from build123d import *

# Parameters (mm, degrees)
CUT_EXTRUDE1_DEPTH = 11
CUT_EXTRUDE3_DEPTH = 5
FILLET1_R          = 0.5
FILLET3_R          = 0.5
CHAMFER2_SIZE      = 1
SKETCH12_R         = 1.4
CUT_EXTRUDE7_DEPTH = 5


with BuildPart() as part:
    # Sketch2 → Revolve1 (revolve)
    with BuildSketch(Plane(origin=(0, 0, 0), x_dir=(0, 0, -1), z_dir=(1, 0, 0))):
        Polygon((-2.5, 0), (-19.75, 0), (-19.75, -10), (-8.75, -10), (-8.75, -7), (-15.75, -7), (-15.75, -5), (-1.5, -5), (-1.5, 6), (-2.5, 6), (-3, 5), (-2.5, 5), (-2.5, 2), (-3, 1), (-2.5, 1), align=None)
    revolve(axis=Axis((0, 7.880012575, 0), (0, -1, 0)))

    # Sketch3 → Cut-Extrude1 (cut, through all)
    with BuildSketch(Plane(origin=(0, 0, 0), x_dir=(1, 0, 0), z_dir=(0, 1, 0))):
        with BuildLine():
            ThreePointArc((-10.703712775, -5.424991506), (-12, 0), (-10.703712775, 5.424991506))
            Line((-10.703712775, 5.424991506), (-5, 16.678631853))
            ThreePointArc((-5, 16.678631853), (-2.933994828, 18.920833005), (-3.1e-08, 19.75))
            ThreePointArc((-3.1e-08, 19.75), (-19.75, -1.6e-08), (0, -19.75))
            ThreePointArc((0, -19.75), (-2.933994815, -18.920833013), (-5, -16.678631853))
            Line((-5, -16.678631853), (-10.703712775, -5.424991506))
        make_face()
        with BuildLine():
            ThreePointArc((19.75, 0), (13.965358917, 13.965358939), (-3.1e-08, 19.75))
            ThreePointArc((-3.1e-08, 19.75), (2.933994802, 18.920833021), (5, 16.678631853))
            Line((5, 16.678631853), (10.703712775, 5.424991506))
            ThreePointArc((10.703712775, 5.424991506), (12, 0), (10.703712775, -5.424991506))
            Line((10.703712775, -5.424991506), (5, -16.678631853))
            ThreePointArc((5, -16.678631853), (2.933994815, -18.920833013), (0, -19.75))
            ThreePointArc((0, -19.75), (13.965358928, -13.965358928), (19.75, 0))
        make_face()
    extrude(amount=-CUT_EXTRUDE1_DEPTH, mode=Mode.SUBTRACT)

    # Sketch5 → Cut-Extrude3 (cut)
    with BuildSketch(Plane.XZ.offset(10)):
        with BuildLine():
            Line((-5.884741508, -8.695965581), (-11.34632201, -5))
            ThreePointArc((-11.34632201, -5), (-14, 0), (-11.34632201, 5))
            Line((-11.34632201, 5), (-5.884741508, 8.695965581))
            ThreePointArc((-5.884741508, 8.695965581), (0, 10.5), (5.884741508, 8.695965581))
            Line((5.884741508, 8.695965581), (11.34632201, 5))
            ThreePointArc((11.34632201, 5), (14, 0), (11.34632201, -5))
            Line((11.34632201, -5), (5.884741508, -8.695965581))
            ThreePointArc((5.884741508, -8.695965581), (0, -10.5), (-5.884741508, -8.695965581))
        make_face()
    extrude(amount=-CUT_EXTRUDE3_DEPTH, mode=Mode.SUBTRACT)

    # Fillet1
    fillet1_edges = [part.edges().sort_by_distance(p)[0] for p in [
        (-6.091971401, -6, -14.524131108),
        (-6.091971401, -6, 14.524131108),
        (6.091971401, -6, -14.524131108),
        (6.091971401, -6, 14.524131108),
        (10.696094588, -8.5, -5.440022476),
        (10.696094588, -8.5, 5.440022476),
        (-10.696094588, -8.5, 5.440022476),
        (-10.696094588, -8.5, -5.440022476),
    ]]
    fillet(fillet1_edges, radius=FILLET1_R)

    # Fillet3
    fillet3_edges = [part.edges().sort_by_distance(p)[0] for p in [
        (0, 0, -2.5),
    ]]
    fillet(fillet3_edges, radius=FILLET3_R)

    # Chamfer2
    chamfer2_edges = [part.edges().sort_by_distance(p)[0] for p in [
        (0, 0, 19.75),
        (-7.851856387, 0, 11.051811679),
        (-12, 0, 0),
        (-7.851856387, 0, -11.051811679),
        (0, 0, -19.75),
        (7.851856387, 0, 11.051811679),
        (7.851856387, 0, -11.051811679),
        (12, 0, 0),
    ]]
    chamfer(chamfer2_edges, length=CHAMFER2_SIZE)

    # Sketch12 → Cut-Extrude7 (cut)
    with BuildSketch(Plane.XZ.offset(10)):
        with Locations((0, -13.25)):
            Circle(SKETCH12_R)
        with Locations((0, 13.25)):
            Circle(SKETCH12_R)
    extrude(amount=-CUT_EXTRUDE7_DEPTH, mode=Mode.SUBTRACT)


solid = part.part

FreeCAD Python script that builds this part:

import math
import FreeCAD as App
import Part
import Sketcher

V = App.Vector
Q = App.Units.Quantity


def edges_at(feature, points):
    """Names of the edges that pass closest to the given points."""
    edges = feature.Shape.Edges
    near = lambda p: min(range(len(edges)), key=lambda i: edges[i].distToShape(Part.Vertex(*p))[0])
    return sorted({f"Edge{near(p) + 1}" for p in points})

doc = App.newDocument("Part")
body = doc.addObject("PartDesign::Body", "Body")

# Sketch on YZ plane
sketch1 = body.newObject("Sketcher::SketchObject", "Sketch")
sketch1.AttachmentSupport = (doc.getObject("YZ_Plane"), [""])
sketch1.MapMode = "FlatFace"
sketch1.addGeometry(Part.LineSegment(V(0, 2.5, 0), V(0, 19.75, 0)), False)
sketch1.addGeometry(Part.LineSegment(V(0, 19.75, 0), V(-10, 19.75, 0)), False)
sketch1.addGeometry(Part.LineSegment(V(-10, 19.75, 0), V(-10, 8.75, 0)), False)
sketch1.addGeometry(Part.LineSegment(V(-10, 8.75, 0), V(-7, 8.75, 0)), False)
sketch1.addGeometry(Part.LineSegment(V(-7, 8.75, 0), V(-7, 15.75, 0)), False)
sketch1.addGeometry(Part.LineSegment(V(-7, 15.75, 0), V(-5, 15.75, 0)), False)
sketch1.addGeometry(Part.LineSegment(V(-5, 15.75, 0), V(-5, 1.5, 0)), False)
sketch1.addGeometry(Part.LineSegment(V(-5, 1.5, 0), V(6, 1.5, 0)), False)
sketch1.addGeometry(Part.LineSegment(V(6, 1.5, 0), V(6, 2.5, 0)), False)
sketch1.addGeometry(Part.LineSegment(V(6, 2.5, 0), V(5, 3, 0)), False)
sketch1.addGeometry(Part.LineSegment(V(5, 3, 0), V(5, 2.5, 0)), False)
sketch1.addGeometry(Part.LineSegment(V(5, 2.5, 0), V(2, 2.5, 0)), False)
sketch1.addGeometry(Part.LineSegment(V(2, 2.5, 0), V(1, 3, 0)), False)
sketch1.addGeometry(Part.LineSegment(V(1, 3, 0), V(1, 2.5, 0)), False)
sketch1.addGeometry(Part.LineSegment(V(1, 2.5, 0), V(0, 2.5, 0)), False)
sketch1.addConstraint(Sketcher.Constraint("Coincident", 0, 2, 1, 1))
sketch1.addConstraint(Sketcher.Constraint("Coincident", 1, 2, 2, 1))
sketch1.addConstraint(Sketcher.Constraint("Coincident", 2, 2, 3, 1))
sketch1.addConstraint(Sketcher.Constraint("Coincident", 3, 2, 4, 1))
sketch1.addConstraint(Sketcher.Constraint("Coincident", 4, 2, 5, 1))
sketch1.addConstraint(Sketcher.Constraint("Coincident", 5, 2, 6, 1))
sketch1.addConstraint(Sketcher.Constraint("Coincident", 6, 2, 7, 1))
sketch1.addConstraint(Sketcher.Constraint("Coincident", 7, 2, 8, 1))
sketch1.addConstraint(Sketcher.Constraint("Coincident", 8, 2, 9, 1))
sketch1.addConstraint(Sketcher.Constraint("Coincident", 9, 2, 10, 1))
sketch1.addConstraint(Sketcher.Constraint("Coincident", 10, 2, 11, 1))
sketch1.addConstraint(Sketcher.Constraint("Coincident", 11, 2, 12, 1))
sketch1.addConstraint(Sketcher.Constraint("Coincident", 12, 2, 13, 1))
sketch1.addConstraint(Sketcher.Constraint("Coincident", 13, 2, 14, 1))
sketch1.addConstraint(Sketcher.Constraint("Coincident", 14, 2, 0, 1))
sketch1.addConstraint(Sketcher.Constraint("Vertical", 0))
sketch1.addConstraint(Sketcher.Constraint("Horizontal", 1))
sketch1.addConstraint(Sketcher.Constraint("Vertical", 2))
sketch1.addConstraint(Sketcher.Constraint("Horizontal", 3))
sketch1.addConstraint(Sketcher.Constraint("Vertical", 4))
sketch1.addConstraint(Sketcher.Constraint("Horizontal", 5))
sketch1.addConstraint(Sketcher.Constraint("Vertical", 6))
sketch1.addConstraint(Sketcher.Constraint("Horizontal", 7))
sketch1.addConstraint(Sketcher.Constraint("Vertical", 8))
sketch1.addConstraint(Sketcher.Constraint("Vertical", 10))
sketch1.addConstraint(Sketcher.Constraint("Horizontal", 11))
sketch1.addConstraint(Sketcher.Constraint("Vertical", 13))
sketch1.addConstraint(Sketcher.Constraint("Horizontal", 14))
sketch1.addConstraint(Sketcher.Constraint("PointOnObject", 0, 2, -2))
sketch1.addConstraint(Sketcher.Constraint("Parallel", 9, 12))
sketch1.addConstraint(Sketcher.Constraint("Horizontal", 8, 2, 10, 2))
sketch1.addConstraint(Sketcher.Constraint("Horizontal", 9, 2, 12, 2))
sketch1.addConstraint(Sketcher.Constraint("Horizontal", 11, 2, 13, 2))
sketch1.addConstraint(Sketcher.Constraint("Equal", 3, 11))
sketch1.addConstraint(Sketcher.Constraint("Equal", 7, 2))
sketch1.addConstraint(Sketcher.Constraint("Equal", 14, 8))
sketch1.addConstraint(Sketcher.Constraint("DistanceX", 1, 2, 1, 1, Q("10 mm")))
sketch1.addConstraint(Sketcher.Constraint("DistanceX", 3, 1, 3, 2, Q("3 mm")))
sketch1.addConstraint(Sketcher.Constraint("DistanceX", 5, 1, 5, 2, Q("2 mm")))
sketch1.addConstraint(Sketcher.Constraint("DistanceX", 7, 1, 7, 2, Q("11 mm")))
sketch1.addConstraint(Sketcher.Constraint("DistanceX", 14, 2, 14, 1, Q("1 mm")))
sketch1.addConstraint(Sketcher.Constraint("DistanceY", 4, 1, 4, 2, Q("7 mm")))
sketch1.addConstraint(Sketcher.Constraint("DistanceY", 10, 2, 10, 1, Q("0.5 mm")))
sketch1.addConstraint(Sketcher.Constraint("DistanceY", -1, 1, 9, 2, Q("3 mm")))
sketch1.addConstraint(Sketcher.Constraint("DistanceY", 0, 1, 0, 2, Q("17.25 mm")))
revolution = body.newObject("PartDesign::Revolution", "Revolution")
revolution.Profile = sketch1
revolution.ReferenceAxis = (sketch1, ["H_Axis"])
revolution.Angle = 360

# Sketch on XZ plane
sketch2 = body.newObject("Sketcher::SketchObject", "Sketch001")
sketch2.AttachmentSupport = (doc.getObject("XZ_Plane"), [""])
sketch2.MapMode = "FlatFace"
sketch2.addGeometry(Part.ArcOfCircle(Part.Circle(V(0, 0, 0), V(0, 0, 1), 12), math.radians(153.122618), math.radians(206.877382)), False)
sketch2.addGeometry(Part.LineSegment(V(-10.703713, -5.424992, 0), V(-5, -16.678632, 0)), False)
sketch2.addGeometry(Part.ArcOfCircle(Part.Circle(V(0, -14.144468, 0), V(0, 0, 1), 5.605532), math.radians(-153.122618), math.radians(-90)), False)
sketch2.addGeometry(Part.ArcOfCircle(Part.Circle(V(0, 0, 0), V(0, 0, 1), 19.75), math.radians(90), math.radians(270)), False)
sketch2.addGeometry(Part.ArcOfCircle(Part.Circle(V(0, 14.144468, 0), V(0, 0, 1), 5.605532), math.radians(90), math.radians(153.122618)), False)
sketch2.addGeometry(Part.LineSegment(V(-5, 16.678632, 0), V(-10.703713, 5.424992, 0)), False)
sketch2.addGeometry(Part.ArcOfCircle(Part.Circle(V(0, 0, 0), V(0, 0, 1), 19.75), math.radians(-90), math.radians(0)), False)
sketch2.addGeometry(Part.ArcOfCircle(Part.Circle(V(0, -14.144468, 0), V(0, 0, 1), 5.605532), math.radians(-90), math.radians(-26.877382)), False)
sketch2.addGeometry(Part.LineSegment(V(5, -16.678632, 0), V(10.703713, -5.424992, 0)), False)
sketch2.addGeometry(Part.ArcOfCircle(Part.Circle(V(0, 0, 0), V(0, 0, 1), 12), math.radians(-26.877382), math.radians(26.877382)), False)
sketch2.addGeometry(Part.LineSegment(V(10.703713, 5.424992, 0), V(5, 16.678632, 0)), False)
sketch2.addGeometry(Part.ArcOfCircle(Part.Circle(V(0, 14.144468, 0), V(0, 0, 1), 5.605532), math.radians(26.877382), math.radians(90)), False)
sketch2.addGeometry(Part.ArcOfCircle(Part.Circle(V(0, 0, 0), V(0, 0, 1), 19.75), math.radians(0), math.radians(90)), False)
sketch2.addConstraint(Sketcher.Constraint("Tangent", 0, 2, 1, 1))
sketch2.addConstraint(Sketcher.Constraint("Tangent", 1, 2, 2, 1))
sketch2.addConstraint(Sketcher.Constraint("Tangent", 2, 2, 3, 2))
sketch2.addConstraint(Sketcher.Constraint("Tangent", 3, 1, 4, 1))
sketch2.addConstraint(Sketcher.Constraint("Tangent", 4, 2, 5, 1))
sketch2.addConstraint(Sketcher.Constraint("Tangent", 5, 2, 0, 1))
sketch2.addConstraint(Sketcher.Constraint("Tangent", 6, 1, 7, 1))
sketch2.addConstraint(Sketcher.Constraint("Tangent", 7, 2, 8, 1))
sketch2.addConstraint(Sketcher.Constraint("Tangent", 8, 2, 9, 1))
sketch2.addConstraint(Sketcher.Constraint("Tangent", 9, 2, 10, 1))
sketch2.addConstraint(Sketcher.Constraint("Tangent", 10, 2, 11, 1))
sketch2.addConstraint(Sketcher.Constraint("Tangent", 11, 2, 12, 2))
sketch2.addConstraint(Sketcher.Constraint("Tangent", 12, 1, 6, 2))
sketch2.addConstraint(Sketcher.Constraint("Coincident", 0, 3, -1, 1))
sketch2.addConstraint(Sketcher.Constraint("Coincident", 3, 3, -1, 1))
sketch2.addConstraint(Sketcher.Constraint("Coincident", 6, 3, -1, 1))
sketch2.addConstraint(Sketcher.Constraint("Coincident", 9, 3, -1, 1))
sketch2.addConstraint(Sketcher.Constraint("Coincident", 7, 3, 2, 3))
sketch2.addConstraint(Sketcher.Constraint("Coincident", 11, 3, 4, 3))
sketch2.addConstraint(Sketcher.Constraint("Coincident", 11, 2, 3, 1))
sketch2.addConstraint(Sketcher.Constraint("Equal", 2, 4))
sketch2.addConstraint(Sketcher.Constraint("Equal", 0, 9))
sketch2.addConstraint(Sketcher.Constraint("PointOnObject", 2, 3, -2))
sketch2.addConstraint(Sketcher.Constraint("PointOnObject", 4, 3, -2))
sketch2.addConstraint(Sketcher.Constraint("PointOnObject", 12, 1, -1))
sketch2.addConstraint(Sketcher.Constraint("Radius", 0, Q("12 mm")))
sketch2.addConstraint(Sketcher.Constraint("Radius", 3, Q("19.75 mm")))
sketch2.addConstraint(Sketcher.Constraint("DistanceX", 1, 2, -1, 1, Q("5 mm")))
pocket1 = body.newObject("PartDesign::Pocket", "Pocket")
pocket1.Profile = sketch2
pocket1.Type = "ThroughAll"
pocket1.Reversed = True

# Sketch on XZ plane
sketch3 = body.newObject("Sketcher::SketchObject", "Sketch002")
sketch3.AttachmentSupport = (doc.getObject("XZ_Plane"), [""])
sketch3.MapMode = "FlatFace"
sketch3.AttachmentOffset = App.Placement(V(0, 0, 10), App.Rotation())
sketch3.addGeometry(Part.LineSegment(V(-11.346322, -5, 0), V(-5.884742, -8.695966, 0)), False)
sketch3.addGeometry(Part.ArcOfCircle(Part.Circle(V(0, 0, 0), V(0, 0, 1), 10.5), math.radians(-124.087033), math.radians(-55.912967)), False)
sketch3.addGeometry(Part.LineSegment(V(5.884742, -8.695966, 0), V(11.346322, -5, 0)), False)
sketch3.addGeometry(Part.ArcOfCircle(Part.Circle(V(7.962718, 0, 0), V(0, 0, 1), 6.037282), math.radians(-55.912967), math.radians(55.912967)), False)
sketch3.addGeometry(Part.LineSegment(V(11.346322, 5, 0), V(5.884742, 8.695966, 0)), False)
sketch3.addGeometry(Part.ArcOfCircle(Part.Circle(V(0, 0, 0), V(0, 0, 1), 10.5), math.radians(55.912967), math.radians(124.087033)), False)
sketch3.addGeometry(Part.LineSegment(V(-5.884742, 8.695966, 0), V(-11.346322, 5, 0)), False)
sketch3.addGeometry(Part.ArcOfCircle(Part.Circle(V(-7.962718, 0, 0), V(0, 0, 1), 6.037282), math.radians(124.087033), math.radians(235.912967)), False)
sketch3.addConstraint(Sketcher.Constraint("Tangent", 0, 2, 1, 1))
sketch3.addConstraint(Sketcher.Constraint("Tangent", 1, 2, 2, 1))
sketch3.addConstraint(Sketcher.Constraint("Tangent", 2, 2, 3, 1))
sketch3.addConstraint(Sketcher.Constraint("Tangent", 3, 2, 4, 1))
sketch3.addConstraint(Sketcher.Constraint("Tangent", 4, 2, 5, 1))
sketch3.addConstraint(Sketcher.Constraint("Tangent", 5, 2, 6, 1))
sketch3.addConstraint(Sketcher.Constraint("Tangent", 6, 2, 7, 1))
sketch3.addConstraint(Sketcher.Constraint("Tangent", 7, 2, 0, 1))
sketch3.addConstraint(Sketcher.Constraint("Coincident", 1, 3, -1, 1))
sketch3.addConstraint(Sketcher.Constraint("Coincident", 5, 3, -1, 1))
sketch3.addConstraint(Sketcher.Constraint("Equal", 1, 5))
sketch3.addConstraint(Sketcher.Constraint("Equal", 3, 7))
sketch3.addConstraint(Sketcher.Constraint("Symmetric", 3, 3, 7, 3, -1, 1))
sketch3.addConstraint(Sketcher.Constraint("PointOnObject", 3, 3, -1))
sketch3.addConstraint(Sketcher.Constraint("Radius", 1, Q("10.5 mm")))
sketch3.addConstraint(Sketcher.Constraint("DistanceY", 2, 2, -1, 1, Q("5 mm")))
sketch3.addConstraint(Sketcher.Constraint("Radius", 3, Q("6.037282 mm")))
pocket2 = body.newObject("PartDesign::Pocket", "Pocket001")
pocket2.Profile = sketch3
pocket2.Length = 5
doc.recompute()

fillet = body.newObject("PartDesign::Fillet", "Fillet")
fillet.Base = (pocket2, edges_at(pocket2, [
    (-6.092, -6, -14.524),
    (-6.092, -6, 14.524),
    (6.092, -6, -14.524),
    (6.092, -6, 14.524),
    (10.696, -8.5, -5.44),
    (10.696, -8.5, 5.44),
    (-10.696, -8.5, 5.44),
    (-10.696, -8.5, -5.44),
]))
fillet.Radius = 0.5
doc.recompute()

fillet2 = body.newObject("PartDesign::Fillet", "Fillet001")
fillet2.Base = (fillet, edges_at(fillet, [(0, 0, -2.5)]))
fillet2.Radius = 0.5
doc.recompute()

chamfer = body.newObject("PartDesign::Chamfer", "Chamfer")
chamfer.Base = (fillet2, edges_at(fillet2, [
    (-2.934, 0, 18.921),
    (-7.852, 0, 11.052),
    (-12, 0, 0),
    (-7.852, 0, -11.052),
    (-2.934, 0, -18.921),
    (7.852, 0, 11.052),
    (7.852, 0, -11.052),
    (12, 0, 0),
]))
chamfer.Size = 1

# Sketch on XZ plane
sketch4 = body.newObject("Sketcher::SketchObject", "Sketch003")
sketch4.AttachmentSupport = (doc.getObject("XZ_Plane"), [""])
sketch4.MapMode = "FlatFace"
sketch4.AttachmentOffset = App.Placement(V(0, 0, 10), App.Rotation())
sketch4.addGeometry(Part.Circle(V(0, -13.25, 0), V(0, 0, 1), 1.4), False)
sketch4.addGeometry(Part.Circle(V(0, 13.25, 0), V(0, 0, 1), 1.4), False)
sketch4.addConstraint(Sketcher.Constraint("Equal", 0, 1))
sketch4.addConstraint(Sketcher.Constraint("Symmetric", 0, 3, 1, 3, -1, 1))
sketch4.addConstraint(Sketcher.Constraint("PointOnObject", 0, 3, -2))
sketch4.addConstraint(Sketcher.Constraint("Diameter", 0, Q("2.8 mm")))
sketch4.addConstraint(Sketcher.Constraint("DistanceY", 0, 3, 1, 3, Q("26.5 mm")))
pocket3 = body.newObject("PartDesign::Pocket", "Pocket002")
pocket3.Profile = sketch4
pocket3.Length = 5

doc.recompute()
